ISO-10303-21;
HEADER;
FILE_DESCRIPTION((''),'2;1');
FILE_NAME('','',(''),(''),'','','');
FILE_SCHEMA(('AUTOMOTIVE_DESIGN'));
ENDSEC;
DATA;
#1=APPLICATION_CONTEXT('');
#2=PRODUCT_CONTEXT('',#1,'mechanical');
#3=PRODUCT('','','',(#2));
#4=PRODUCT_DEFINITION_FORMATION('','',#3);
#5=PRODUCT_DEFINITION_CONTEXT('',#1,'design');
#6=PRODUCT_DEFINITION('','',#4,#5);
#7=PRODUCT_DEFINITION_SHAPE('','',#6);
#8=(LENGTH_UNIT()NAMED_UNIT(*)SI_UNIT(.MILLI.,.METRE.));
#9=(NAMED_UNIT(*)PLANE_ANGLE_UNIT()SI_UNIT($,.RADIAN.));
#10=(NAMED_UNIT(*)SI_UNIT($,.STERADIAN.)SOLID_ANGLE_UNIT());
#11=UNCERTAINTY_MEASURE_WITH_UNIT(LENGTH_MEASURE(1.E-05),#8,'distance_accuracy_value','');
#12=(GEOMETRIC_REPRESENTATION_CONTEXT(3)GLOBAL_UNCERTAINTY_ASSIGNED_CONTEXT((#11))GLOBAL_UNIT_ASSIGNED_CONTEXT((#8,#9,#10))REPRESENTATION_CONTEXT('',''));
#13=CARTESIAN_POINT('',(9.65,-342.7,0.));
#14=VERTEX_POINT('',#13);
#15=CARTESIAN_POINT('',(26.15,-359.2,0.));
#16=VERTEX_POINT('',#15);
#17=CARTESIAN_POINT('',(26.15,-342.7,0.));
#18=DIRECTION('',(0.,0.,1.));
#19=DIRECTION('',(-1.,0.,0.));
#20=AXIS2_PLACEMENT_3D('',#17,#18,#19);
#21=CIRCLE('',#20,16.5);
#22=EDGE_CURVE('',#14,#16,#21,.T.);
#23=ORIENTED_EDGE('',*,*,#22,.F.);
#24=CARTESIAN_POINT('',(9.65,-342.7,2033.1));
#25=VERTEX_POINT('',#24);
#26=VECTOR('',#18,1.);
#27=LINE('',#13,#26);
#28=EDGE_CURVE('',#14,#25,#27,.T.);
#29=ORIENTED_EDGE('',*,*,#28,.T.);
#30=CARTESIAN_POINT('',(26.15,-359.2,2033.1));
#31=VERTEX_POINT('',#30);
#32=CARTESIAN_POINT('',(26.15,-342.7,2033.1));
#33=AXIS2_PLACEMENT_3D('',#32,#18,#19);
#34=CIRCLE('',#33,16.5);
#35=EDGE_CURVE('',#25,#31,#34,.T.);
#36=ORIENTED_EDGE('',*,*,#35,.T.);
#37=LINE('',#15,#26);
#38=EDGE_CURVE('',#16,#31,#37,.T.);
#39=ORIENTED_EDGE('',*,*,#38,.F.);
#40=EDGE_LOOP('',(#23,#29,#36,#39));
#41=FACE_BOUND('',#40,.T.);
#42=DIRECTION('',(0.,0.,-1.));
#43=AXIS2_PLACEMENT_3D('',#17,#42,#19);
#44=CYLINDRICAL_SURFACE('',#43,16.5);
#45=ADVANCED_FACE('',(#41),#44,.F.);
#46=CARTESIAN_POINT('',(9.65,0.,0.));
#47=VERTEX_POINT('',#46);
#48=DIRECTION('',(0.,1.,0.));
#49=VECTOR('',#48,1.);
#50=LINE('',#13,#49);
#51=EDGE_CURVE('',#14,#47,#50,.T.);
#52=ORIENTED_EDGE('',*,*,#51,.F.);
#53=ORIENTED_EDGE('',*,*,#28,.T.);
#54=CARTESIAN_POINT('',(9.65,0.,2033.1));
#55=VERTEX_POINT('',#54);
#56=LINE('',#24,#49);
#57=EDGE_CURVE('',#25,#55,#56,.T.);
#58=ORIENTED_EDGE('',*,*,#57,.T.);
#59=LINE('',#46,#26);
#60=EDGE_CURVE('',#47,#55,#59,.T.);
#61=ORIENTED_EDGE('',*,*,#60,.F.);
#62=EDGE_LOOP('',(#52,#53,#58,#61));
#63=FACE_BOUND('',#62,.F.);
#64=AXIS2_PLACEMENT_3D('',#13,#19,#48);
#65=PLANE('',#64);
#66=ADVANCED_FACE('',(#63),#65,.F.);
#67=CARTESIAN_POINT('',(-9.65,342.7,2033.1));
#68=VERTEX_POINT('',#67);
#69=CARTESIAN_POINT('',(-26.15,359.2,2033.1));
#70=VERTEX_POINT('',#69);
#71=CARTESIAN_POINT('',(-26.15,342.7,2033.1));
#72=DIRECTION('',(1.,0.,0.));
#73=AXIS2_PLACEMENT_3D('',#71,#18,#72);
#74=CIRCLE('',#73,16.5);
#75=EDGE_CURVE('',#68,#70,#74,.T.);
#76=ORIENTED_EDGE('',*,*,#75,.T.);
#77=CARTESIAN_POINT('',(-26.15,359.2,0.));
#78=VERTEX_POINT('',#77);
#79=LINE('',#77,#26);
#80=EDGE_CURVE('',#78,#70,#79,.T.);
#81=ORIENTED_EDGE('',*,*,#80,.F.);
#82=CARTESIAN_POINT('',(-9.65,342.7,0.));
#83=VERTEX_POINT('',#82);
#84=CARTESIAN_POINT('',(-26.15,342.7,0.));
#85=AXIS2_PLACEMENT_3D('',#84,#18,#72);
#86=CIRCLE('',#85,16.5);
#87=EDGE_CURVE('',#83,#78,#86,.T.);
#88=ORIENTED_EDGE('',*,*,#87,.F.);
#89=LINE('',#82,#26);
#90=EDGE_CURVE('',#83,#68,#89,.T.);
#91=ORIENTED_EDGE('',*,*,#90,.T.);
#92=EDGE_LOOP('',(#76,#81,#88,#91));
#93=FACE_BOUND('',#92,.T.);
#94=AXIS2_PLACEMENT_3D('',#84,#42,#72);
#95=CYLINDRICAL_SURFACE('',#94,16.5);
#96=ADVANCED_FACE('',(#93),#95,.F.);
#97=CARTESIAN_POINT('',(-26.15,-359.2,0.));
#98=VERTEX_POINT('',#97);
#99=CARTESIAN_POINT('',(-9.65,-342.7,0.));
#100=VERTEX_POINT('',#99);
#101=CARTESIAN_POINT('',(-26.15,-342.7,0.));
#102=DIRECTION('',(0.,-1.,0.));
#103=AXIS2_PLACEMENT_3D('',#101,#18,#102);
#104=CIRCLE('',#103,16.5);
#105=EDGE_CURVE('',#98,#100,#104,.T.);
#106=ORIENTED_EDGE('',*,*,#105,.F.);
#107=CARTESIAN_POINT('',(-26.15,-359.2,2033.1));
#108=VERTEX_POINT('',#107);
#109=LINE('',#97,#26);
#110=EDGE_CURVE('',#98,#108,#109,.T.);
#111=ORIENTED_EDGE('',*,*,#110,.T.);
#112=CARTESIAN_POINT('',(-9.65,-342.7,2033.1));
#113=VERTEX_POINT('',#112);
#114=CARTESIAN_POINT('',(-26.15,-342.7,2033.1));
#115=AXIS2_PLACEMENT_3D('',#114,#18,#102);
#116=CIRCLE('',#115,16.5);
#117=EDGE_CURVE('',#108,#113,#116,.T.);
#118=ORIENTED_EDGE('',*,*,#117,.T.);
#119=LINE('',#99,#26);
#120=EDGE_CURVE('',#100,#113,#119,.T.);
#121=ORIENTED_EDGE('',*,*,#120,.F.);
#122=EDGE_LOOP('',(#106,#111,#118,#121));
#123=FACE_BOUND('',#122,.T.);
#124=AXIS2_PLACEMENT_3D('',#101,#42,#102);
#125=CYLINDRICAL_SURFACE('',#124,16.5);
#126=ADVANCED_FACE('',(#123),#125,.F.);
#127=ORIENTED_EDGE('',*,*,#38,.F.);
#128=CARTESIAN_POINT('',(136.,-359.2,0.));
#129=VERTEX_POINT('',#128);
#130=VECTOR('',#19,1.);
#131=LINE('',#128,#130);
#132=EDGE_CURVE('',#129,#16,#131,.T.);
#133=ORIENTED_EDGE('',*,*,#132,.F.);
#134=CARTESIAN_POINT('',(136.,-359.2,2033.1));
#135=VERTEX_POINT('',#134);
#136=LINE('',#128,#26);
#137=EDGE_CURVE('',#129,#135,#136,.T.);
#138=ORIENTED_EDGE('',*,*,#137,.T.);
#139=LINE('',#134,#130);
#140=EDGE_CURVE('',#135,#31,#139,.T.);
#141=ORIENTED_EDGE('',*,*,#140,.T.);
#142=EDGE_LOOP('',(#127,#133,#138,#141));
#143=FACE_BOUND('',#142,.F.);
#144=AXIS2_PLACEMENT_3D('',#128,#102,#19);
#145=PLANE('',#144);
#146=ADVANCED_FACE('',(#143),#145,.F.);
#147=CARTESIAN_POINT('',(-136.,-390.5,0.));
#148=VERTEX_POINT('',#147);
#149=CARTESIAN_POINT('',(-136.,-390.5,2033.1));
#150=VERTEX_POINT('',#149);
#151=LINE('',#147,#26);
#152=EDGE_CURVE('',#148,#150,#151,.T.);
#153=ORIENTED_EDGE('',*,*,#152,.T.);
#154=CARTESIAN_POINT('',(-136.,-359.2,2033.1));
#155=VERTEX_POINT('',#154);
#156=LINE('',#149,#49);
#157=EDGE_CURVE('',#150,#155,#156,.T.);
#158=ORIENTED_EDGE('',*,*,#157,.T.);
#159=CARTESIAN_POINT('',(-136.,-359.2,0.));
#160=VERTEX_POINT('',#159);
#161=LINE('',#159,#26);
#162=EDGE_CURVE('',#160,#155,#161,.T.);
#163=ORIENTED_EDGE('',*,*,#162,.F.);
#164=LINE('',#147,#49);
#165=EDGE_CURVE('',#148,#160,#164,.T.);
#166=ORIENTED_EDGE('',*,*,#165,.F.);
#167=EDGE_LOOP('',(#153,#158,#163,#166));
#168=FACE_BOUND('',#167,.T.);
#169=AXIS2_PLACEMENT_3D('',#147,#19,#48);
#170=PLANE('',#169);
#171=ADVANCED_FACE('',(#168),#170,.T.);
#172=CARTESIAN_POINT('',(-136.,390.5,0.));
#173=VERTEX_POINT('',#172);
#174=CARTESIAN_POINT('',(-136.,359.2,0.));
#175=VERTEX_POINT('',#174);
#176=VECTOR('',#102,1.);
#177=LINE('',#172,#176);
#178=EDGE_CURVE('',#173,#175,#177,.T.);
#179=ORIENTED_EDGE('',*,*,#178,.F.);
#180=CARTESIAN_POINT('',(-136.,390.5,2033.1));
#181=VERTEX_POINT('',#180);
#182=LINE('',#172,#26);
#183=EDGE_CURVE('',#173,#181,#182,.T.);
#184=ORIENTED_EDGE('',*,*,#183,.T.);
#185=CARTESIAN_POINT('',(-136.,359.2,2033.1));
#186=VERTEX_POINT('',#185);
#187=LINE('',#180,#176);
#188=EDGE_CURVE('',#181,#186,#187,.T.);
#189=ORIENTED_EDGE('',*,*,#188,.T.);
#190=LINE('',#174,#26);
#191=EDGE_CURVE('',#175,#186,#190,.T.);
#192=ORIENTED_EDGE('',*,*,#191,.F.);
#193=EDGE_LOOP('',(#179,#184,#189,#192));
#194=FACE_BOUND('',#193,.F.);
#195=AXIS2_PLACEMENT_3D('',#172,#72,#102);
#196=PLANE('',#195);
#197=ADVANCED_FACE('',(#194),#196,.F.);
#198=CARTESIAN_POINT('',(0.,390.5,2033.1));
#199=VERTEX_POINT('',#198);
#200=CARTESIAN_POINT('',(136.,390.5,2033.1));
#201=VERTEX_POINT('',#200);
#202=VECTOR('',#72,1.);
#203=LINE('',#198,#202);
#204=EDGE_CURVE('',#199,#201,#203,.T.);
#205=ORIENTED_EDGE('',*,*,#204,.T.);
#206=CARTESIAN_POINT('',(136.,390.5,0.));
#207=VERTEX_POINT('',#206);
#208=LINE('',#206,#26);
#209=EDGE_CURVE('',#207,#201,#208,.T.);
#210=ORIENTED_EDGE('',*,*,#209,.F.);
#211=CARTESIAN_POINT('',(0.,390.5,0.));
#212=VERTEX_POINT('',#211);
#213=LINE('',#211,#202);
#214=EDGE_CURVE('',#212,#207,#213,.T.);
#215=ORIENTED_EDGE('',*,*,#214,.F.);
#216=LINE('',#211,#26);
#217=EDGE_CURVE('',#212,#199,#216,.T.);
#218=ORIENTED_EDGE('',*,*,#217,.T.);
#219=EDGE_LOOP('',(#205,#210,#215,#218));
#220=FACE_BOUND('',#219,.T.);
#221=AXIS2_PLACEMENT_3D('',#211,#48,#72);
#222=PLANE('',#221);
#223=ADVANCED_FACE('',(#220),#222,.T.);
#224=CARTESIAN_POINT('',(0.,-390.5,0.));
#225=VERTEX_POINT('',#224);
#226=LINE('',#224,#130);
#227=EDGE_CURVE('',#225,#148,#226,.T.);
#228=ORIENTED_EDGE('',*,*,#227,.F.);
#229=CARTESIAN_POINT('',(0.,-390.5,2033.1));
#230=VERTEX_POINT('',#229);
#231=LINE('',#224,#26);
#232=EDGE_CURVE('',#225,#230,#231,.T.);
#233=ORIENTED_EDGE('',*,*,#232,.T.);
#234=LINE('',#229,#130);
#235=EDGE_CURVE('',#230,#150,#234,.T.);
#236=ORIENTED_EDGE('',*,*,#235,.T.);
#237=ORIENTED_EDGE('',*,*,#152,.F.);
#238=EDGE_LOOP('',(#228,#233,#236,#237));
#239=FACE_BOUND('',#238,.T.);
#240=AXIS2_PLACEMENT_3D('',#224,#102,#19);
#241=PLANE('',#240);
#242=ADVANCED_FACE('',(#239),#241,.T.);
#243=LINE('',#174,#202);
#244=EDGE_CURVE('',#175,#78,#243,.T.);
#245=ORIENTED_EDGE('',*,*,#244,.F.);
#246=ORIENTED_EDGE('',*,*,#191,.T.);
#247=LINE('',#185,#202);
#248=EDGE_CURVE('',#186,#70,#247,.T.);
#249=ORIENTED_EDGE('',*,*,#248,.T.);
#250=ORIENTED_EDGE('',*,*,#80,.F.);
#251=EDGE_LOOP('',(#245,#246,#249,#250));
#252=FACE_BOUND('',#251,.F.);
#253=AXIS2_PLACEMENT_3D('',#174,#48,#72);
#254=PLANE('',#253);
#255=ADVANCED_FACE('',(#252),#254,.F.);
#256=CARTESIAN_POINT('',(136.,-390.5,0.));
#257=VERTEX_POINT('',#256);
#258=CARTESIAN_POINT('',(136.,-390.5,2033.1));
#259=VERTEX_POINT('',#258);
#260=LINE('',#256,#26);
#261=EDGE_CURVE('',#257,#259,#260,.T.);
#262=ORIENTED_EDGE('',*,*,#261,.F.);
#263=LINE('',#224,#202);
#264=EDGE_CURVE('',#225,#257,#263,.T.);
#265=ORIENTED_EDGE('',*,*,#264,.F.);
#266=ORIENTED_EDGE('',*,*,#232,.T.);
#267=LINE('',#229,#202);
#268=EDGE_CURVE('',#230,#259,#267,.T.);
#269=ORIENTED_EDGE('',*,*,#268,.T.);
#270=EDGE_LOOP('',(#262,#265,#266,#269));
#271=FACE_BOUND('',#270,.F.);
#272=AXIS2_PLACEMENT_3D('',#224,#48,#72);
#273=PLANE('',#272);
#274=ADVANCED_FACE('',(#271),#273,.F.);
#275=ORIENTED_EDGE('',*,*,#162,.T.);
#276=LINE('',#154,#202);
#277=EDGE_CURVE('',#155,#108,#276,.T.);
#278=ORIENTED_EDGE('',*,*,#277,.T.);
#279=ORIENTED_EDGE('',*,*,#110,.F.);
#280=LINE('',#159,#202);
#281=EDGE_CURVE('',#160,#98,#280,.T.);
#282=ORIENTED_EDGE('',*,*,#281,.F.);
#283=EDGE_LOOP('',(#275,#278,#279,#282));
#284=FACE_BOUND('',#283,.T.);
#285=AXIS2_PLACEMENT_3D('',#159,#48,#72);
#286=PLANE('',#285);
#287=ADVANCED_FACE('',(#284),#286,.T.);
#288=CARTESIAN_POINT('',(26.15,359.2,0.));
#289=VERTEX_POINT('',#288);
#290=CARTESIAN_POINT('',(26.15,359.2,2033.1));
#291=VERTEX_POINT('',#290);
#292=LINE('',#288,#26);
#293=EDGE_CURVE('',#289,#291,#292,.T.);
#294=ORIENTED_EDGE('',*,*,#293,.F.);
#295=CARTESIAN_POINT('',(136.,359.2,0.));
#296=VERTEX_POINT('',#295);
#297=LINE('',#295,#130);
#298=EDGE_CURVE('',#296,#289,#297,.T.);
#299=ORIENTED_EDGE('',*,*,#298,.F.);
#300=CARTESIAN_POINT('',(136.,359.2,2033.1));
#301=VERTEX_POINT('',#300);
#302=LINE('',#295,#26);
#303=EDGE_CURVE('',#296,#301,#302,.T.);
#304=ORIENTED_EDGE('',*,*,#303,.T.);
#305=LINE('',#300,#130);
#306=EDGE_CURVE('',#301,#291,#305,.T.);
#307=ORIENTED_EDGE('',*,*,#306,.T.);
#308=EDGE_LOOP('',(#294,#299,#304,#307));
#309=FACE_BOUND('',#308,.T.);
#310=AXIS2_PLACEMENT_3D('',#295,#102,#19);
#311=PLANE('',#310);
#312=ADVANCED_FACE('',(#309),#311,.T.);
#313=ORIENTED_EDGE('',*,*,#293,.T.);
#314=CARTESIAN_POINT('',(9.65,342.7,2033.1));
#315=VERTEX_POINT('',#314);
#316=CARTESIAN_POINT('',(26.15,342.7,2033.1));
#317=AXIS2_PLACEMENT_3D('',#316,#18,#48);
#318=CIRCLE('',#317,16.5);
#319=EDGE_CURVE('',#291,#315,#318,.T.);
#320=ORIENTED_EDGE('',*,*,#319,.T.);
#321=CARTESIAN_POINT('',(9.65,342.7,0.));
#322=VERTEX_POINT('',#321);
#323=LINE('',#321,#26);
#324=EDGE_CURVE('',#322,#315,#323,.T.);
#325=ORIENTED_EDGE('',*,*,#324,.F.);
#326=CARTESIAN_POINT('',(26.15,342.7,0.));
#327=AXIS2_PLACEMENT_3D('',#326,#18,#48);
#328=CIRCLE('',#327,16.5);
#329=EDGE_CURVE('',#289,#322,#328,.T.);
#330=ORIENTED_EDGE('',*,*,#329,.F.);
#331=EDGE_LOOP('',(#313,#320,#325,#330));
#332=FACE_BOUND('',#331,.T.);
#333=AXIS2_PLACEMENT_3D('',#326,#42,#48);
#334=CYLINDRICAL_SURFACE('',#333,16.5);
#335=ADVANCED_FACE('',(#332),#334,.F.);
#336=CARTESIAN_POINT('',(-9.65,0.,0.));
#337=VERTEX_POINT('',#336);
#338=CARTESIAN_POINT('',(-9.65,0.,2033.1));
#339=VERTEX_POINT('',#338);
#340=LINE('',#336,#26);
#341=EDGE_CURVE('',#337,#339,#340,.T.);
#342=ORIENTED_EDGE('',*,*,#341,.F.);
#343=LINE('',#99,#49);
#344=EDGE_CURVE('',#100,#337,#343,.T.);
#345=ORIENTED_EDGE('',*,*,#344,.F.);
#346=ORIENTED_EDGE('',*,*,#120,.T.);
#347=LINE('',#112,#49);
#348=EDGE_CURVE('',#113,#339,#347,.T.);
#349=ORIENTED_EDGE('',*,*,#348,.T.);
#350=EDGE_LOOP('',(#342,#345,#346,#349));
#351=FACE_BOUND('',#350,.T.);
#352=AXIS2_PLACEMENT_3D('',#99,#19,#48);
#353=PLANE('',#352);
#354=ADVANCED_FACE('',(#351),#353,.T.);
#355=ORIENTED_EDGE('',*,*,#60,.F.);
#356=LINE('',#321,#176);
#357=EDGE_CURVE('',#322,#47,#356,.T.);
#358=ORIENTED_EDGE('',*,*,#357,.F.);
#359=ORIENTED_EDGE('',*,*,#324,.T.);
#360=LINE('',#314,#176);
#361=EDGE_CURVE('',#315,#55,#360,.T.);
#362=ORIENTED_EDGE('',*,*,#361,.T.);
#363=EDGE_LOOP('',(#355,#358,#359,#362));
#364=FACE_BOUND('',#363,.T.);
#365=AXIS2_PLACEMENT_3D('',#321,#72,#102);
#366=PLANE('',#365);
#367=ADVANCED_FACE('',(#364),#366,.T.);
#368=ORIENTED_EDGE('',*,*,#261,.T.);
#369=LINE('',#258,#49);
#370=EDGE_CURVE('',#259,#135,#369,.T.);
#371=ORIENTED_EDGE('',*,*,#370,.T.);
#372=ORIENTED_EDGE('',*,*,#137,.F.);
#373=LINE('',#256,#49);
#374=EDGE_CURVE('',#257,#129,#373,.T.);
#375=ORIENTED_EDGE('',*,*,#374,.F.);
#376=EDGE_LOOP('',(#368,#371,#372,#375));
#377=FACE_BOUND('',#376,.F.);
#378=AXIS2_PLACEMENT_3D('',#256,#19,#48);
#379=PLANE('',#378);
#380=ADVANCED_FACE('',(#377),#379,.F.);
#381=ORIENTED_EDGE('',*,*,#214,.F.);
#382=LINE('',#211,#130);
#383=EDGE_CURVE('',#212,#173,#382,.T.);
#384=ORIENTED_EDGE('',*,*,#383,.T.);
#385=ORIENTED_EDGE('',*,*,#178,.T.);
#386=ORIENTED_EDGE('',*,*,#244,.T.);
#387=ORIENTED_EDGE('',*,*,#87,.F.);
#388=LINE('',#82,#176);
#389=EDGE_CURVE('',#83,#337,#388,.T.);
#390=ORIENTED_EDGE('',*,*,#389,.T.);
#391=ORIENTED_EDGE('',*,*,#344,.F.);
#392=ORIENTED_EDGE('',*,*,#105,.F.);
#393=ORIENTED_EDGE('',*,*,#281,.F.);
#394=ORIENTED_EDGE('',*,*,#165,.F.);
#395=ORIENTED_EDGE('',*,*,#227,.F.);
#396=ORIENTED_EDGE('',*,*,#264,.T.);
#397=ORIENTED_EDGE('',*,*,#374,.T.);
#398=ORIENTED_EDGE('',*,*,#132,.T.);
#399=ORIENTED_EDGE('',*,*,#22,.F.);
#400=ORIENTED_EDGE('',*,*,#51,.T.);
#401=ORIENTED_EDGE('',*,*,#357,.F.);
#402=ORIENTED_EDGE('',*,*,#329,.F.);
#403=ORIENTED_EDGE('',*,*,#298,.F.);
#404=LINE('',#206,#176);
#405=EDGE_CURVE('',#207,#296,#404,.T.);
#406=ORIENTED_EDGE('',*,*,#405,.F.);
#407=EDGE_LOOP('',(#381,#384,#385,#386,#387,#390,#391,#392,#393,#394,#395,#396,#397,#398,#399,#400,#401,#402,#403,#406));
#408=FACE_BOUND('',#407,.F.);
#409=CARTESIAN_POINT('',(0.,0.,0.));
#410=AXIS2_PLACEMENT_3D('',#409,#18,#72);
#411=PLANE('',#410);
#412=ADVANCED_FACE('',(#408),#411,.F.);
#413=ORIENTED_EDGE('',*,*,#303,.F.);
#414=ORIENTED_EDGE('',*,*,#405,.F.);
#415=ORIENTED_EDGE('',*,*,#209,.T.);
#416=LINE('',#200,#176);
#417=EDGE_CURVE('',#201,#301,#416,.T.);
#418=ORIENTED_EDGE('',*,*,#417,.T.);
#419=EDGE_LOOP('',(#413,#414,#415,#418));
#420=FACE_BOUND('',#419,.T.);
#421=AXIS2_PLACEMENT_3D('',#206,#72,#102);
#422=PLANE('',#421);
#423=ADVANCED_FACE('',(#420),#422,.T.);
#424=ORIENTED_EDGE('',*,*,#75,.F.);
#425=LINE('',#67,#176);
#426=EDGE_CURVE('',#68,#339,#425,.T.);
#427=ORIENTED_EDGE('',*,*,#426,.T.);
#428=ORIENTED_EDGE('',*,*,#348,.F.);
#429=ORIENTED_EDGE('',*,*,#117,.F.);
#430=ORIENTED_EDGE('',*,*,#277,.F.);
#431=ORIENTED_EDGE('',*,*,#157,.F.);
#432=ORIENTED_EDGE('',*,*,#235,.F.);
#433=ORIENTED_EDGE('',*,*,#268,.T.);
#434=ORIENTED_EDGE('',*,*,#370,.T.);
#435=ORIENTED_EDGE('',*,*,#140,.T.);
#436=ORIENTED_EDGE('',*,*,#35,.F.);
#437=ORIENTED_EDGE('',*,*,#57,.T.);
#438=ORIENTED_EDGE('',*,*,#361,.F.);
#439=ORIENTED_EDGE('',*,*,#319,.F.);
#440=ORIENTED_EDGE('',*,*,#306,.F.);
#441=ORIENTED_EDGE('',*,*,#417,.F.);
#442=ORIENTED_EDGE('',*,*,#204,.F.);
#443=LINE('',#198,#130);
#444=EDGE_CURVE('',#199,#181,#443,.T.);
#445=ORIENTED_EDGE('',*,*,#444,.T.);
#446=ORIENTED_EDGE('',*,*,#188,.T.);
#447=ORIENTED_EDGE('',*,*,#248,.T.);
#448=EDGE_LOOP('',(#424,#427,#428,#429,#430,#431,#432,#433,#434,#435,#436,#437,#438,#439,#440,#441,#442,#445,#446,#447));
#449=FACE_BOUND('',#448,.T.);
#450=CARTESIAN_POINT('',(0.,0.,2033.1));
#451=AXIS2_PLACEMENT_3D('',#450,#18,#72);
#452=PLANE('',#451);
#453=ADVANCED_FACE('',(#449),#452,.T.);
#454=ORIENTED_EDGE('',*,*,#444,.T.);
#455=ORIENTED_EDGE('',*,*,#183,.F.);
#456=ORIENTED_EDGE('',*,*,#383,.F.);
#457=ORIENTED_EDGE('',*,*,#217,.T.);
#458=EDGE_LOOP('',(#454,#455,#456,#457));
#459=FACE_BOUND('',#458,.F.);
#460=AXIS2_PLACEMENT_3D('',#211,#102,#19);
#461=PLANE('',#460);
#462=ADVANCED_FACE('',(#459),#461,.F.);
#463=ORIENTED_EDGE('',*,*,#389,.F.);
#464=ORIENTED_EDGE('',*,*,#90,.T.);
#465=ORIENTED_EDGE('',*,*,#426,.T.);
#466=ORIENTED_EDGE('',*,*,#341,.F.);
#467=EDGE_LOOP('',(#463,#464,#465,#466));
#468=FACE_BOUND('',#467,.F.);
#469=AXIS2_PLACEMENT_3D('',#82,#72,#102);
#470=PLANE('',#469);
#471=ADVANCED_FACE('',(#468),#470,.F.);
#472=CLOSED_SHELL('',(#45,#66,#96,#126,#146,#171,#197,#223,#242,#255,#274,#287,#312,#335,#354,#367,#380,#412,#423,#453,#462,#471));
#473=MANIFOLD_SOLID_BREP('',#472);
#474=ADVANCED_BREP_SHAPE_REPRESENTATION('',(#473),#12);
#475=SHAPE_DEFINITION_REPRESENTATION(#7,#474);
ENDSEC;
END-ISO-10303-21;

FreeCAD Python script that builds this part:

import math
import FreeCAD as App
import Part
import Sketcher

doc = App.newDocument("Part")
body = doc.addObject("PartDesign::Body", "Body")

sketch1 = body.newObject("Sketcher::SketchObject", "Sketch")
sketch1.AttachmentSupport = (doc.getObject("XY_Plane"), [""])
sketch1.MapMode = "FlatFace"
sketch1.addGeometry([
    Part.LineSegment(App.Vector(-136, -359, 0), App.Vector(-136, -390, 0)),
    Part.LineSegment(App.Vector(-136, -390, 0), App.Vector(136, -390, 0)),
    Part.LineSegment(App.Vector(136, -390, 0), App.Vector(136, -359, 0)),
    Part.LineSegment(App.Vector(136, -359, 0), App.Vector(26, -359, 0)),
    Part.ArcOfCircle(Part.Circle(App.Vector(26, -343, 0), App.Vector(0, 0, 1), 16), math.radians(180), math.radians(270)),
    Part.LineSegment(App.Vector(10, -343, 0), App.Vector(10, 343, 0)),
    Part.ArcOfCircle(Part.Circle(App.Vector(26, 343, 0), App.Vector(0, 0, 1), 16), math.radians(90), math.radians(180)),
    Part.LineSegment(App.Vector(26, 359, 0), App.Vector(136, 359, 0)),
    Part.LineSegment(App.Vector(136, 359, 0), App.Vector(136, 390, 0)),
    Part.LineSegment(App.Vector(136, 390, 0), App.Vector(-136, 390, 0)),
    Part.LineSegment(App.Vector(-136, 390, 0), App.Vector(-136, 359, 0)),
    Part.LineSegment(App.Vector(-136, 359, 0), App.Vector(-26, 359, 0)),
    Part.ArcOfCircle(Part.Circle(App.Vector(-26, 343, 0), App.Vector(0, 0, 1), 16), math.radians(0), math.radians(90)),
    Part.LineSegment(App.Vector(-10, 343, 0), App.Vector(-10, -343, 0)),
    Part.ArcOfCircle(Part.Circle(App.Vector(-26, -343, 0), App.Vector(0, 0, 1), 16), math.radians(-90), math.radians(0)),
    Part.LineSegment(App.Vector(-26, -359, 0), App.Vector(-136, -359, 0)),
], False)
sketch1.addConstraint([
    Sketcher.Constraint("Coincident", 0, 2, 1, 1),
    Sketcher.Constraint("Coincident", 1, 2, 2, 1),
    Sketcher.Constraint("Coincident", 2, 2, 3, 1),
    Sketcher.Constraint("Tangent", 3, 2, 4, 2),
    Sketcher.Constraint("Tangent", 4, 1, 5, 1),
    Sketcher.Constraint("Tangent", 5, 2, 6, 2),
    Sketcher.Constraint("Tangent", 6, 1, 7, 1),
    Sketcher.Constraint("Coincident", 7, 2, 8, 1),
    Sketcher.Constraint("Coincident", 8, 2, 9, 1),
    Sketcher.Constraint("Coincident", 9, 2, 10, 1),
    Sketcher.Constraint("Coincident", 10, 2, 11, 1),
    Sketcher.Constraint("Tangent", 11, 2, 12, 2),
    Sketcher.Constraint("Tangent", 12, 1, 13, 1),
    Sketcher.Constraint("Tangent", 13, 2, 14, 2),
    Sketcher.Constraint("Tangent", 14, 1, 15, 1),
    Sketcher.Constraint("Coincident", 15, 2, 0, 1),
    Sketcher.Constraint("Vertical", 0),
    Sketcher.Constraint("Horizontal", 1),
    Sketcher.Constraint("Vertical", 2),
    Sketcher.Constraint("Horizontal", 3),
    Sketcher.Constraint("Vertical", 5),
    Sketcher.Constraint("Horizontal", 7),
    Sketcher.Constraint("Vertical", 8),
    Sketcher.Constraint("Horizontal", 9),
    Sketcher.Constraint("Vertical", 10),
    Sketcher.Constraint("Horizontal", 11),
    Sketcher.Constraint("Vertical", 13),
    Sketcher.Constraint("Horizontal", 15),
    Sketcher.Constraint("Equal", 4, 6),
    Sketcher.Constraint("Equal", 6, 12),
    Sketcher.Constraint("Equal", 12, 14),
    Sketcher.Constraint("Symmetric", 4, 3, 12, 3, -1, 1),
    Sketcher.Constraint("Symmetric", 0, 2, 8, 2, -1, 1),
    Sketcher.Constraint("Symmetric", 7, 2, 10, 2, -2),
    Sketcher.Constraint("Symmetric", 2, 2, 15, 2, -2),
    Sketcher.Constraint("Radius", 4, 16.5),
    Sketcher.Constraint("DistanceY", 0, 2, 0, 1, 31.3),
    Sketcher.Constraint("DistanceX", 0, 2, -1, 1, 136.0),
    Sketcher.Constraint("DistanceY", 0, 2, -1, 1, 390.5),
    Sketcher.Constraint("DistanceX", -1, 1, 4, 1, 9.65),
])
pad1 = body.newObject("PartDesign::Pad", "Pad")
pad1.Profile = sketch1
pad1.Length = 2033.1

doc.recompute()
